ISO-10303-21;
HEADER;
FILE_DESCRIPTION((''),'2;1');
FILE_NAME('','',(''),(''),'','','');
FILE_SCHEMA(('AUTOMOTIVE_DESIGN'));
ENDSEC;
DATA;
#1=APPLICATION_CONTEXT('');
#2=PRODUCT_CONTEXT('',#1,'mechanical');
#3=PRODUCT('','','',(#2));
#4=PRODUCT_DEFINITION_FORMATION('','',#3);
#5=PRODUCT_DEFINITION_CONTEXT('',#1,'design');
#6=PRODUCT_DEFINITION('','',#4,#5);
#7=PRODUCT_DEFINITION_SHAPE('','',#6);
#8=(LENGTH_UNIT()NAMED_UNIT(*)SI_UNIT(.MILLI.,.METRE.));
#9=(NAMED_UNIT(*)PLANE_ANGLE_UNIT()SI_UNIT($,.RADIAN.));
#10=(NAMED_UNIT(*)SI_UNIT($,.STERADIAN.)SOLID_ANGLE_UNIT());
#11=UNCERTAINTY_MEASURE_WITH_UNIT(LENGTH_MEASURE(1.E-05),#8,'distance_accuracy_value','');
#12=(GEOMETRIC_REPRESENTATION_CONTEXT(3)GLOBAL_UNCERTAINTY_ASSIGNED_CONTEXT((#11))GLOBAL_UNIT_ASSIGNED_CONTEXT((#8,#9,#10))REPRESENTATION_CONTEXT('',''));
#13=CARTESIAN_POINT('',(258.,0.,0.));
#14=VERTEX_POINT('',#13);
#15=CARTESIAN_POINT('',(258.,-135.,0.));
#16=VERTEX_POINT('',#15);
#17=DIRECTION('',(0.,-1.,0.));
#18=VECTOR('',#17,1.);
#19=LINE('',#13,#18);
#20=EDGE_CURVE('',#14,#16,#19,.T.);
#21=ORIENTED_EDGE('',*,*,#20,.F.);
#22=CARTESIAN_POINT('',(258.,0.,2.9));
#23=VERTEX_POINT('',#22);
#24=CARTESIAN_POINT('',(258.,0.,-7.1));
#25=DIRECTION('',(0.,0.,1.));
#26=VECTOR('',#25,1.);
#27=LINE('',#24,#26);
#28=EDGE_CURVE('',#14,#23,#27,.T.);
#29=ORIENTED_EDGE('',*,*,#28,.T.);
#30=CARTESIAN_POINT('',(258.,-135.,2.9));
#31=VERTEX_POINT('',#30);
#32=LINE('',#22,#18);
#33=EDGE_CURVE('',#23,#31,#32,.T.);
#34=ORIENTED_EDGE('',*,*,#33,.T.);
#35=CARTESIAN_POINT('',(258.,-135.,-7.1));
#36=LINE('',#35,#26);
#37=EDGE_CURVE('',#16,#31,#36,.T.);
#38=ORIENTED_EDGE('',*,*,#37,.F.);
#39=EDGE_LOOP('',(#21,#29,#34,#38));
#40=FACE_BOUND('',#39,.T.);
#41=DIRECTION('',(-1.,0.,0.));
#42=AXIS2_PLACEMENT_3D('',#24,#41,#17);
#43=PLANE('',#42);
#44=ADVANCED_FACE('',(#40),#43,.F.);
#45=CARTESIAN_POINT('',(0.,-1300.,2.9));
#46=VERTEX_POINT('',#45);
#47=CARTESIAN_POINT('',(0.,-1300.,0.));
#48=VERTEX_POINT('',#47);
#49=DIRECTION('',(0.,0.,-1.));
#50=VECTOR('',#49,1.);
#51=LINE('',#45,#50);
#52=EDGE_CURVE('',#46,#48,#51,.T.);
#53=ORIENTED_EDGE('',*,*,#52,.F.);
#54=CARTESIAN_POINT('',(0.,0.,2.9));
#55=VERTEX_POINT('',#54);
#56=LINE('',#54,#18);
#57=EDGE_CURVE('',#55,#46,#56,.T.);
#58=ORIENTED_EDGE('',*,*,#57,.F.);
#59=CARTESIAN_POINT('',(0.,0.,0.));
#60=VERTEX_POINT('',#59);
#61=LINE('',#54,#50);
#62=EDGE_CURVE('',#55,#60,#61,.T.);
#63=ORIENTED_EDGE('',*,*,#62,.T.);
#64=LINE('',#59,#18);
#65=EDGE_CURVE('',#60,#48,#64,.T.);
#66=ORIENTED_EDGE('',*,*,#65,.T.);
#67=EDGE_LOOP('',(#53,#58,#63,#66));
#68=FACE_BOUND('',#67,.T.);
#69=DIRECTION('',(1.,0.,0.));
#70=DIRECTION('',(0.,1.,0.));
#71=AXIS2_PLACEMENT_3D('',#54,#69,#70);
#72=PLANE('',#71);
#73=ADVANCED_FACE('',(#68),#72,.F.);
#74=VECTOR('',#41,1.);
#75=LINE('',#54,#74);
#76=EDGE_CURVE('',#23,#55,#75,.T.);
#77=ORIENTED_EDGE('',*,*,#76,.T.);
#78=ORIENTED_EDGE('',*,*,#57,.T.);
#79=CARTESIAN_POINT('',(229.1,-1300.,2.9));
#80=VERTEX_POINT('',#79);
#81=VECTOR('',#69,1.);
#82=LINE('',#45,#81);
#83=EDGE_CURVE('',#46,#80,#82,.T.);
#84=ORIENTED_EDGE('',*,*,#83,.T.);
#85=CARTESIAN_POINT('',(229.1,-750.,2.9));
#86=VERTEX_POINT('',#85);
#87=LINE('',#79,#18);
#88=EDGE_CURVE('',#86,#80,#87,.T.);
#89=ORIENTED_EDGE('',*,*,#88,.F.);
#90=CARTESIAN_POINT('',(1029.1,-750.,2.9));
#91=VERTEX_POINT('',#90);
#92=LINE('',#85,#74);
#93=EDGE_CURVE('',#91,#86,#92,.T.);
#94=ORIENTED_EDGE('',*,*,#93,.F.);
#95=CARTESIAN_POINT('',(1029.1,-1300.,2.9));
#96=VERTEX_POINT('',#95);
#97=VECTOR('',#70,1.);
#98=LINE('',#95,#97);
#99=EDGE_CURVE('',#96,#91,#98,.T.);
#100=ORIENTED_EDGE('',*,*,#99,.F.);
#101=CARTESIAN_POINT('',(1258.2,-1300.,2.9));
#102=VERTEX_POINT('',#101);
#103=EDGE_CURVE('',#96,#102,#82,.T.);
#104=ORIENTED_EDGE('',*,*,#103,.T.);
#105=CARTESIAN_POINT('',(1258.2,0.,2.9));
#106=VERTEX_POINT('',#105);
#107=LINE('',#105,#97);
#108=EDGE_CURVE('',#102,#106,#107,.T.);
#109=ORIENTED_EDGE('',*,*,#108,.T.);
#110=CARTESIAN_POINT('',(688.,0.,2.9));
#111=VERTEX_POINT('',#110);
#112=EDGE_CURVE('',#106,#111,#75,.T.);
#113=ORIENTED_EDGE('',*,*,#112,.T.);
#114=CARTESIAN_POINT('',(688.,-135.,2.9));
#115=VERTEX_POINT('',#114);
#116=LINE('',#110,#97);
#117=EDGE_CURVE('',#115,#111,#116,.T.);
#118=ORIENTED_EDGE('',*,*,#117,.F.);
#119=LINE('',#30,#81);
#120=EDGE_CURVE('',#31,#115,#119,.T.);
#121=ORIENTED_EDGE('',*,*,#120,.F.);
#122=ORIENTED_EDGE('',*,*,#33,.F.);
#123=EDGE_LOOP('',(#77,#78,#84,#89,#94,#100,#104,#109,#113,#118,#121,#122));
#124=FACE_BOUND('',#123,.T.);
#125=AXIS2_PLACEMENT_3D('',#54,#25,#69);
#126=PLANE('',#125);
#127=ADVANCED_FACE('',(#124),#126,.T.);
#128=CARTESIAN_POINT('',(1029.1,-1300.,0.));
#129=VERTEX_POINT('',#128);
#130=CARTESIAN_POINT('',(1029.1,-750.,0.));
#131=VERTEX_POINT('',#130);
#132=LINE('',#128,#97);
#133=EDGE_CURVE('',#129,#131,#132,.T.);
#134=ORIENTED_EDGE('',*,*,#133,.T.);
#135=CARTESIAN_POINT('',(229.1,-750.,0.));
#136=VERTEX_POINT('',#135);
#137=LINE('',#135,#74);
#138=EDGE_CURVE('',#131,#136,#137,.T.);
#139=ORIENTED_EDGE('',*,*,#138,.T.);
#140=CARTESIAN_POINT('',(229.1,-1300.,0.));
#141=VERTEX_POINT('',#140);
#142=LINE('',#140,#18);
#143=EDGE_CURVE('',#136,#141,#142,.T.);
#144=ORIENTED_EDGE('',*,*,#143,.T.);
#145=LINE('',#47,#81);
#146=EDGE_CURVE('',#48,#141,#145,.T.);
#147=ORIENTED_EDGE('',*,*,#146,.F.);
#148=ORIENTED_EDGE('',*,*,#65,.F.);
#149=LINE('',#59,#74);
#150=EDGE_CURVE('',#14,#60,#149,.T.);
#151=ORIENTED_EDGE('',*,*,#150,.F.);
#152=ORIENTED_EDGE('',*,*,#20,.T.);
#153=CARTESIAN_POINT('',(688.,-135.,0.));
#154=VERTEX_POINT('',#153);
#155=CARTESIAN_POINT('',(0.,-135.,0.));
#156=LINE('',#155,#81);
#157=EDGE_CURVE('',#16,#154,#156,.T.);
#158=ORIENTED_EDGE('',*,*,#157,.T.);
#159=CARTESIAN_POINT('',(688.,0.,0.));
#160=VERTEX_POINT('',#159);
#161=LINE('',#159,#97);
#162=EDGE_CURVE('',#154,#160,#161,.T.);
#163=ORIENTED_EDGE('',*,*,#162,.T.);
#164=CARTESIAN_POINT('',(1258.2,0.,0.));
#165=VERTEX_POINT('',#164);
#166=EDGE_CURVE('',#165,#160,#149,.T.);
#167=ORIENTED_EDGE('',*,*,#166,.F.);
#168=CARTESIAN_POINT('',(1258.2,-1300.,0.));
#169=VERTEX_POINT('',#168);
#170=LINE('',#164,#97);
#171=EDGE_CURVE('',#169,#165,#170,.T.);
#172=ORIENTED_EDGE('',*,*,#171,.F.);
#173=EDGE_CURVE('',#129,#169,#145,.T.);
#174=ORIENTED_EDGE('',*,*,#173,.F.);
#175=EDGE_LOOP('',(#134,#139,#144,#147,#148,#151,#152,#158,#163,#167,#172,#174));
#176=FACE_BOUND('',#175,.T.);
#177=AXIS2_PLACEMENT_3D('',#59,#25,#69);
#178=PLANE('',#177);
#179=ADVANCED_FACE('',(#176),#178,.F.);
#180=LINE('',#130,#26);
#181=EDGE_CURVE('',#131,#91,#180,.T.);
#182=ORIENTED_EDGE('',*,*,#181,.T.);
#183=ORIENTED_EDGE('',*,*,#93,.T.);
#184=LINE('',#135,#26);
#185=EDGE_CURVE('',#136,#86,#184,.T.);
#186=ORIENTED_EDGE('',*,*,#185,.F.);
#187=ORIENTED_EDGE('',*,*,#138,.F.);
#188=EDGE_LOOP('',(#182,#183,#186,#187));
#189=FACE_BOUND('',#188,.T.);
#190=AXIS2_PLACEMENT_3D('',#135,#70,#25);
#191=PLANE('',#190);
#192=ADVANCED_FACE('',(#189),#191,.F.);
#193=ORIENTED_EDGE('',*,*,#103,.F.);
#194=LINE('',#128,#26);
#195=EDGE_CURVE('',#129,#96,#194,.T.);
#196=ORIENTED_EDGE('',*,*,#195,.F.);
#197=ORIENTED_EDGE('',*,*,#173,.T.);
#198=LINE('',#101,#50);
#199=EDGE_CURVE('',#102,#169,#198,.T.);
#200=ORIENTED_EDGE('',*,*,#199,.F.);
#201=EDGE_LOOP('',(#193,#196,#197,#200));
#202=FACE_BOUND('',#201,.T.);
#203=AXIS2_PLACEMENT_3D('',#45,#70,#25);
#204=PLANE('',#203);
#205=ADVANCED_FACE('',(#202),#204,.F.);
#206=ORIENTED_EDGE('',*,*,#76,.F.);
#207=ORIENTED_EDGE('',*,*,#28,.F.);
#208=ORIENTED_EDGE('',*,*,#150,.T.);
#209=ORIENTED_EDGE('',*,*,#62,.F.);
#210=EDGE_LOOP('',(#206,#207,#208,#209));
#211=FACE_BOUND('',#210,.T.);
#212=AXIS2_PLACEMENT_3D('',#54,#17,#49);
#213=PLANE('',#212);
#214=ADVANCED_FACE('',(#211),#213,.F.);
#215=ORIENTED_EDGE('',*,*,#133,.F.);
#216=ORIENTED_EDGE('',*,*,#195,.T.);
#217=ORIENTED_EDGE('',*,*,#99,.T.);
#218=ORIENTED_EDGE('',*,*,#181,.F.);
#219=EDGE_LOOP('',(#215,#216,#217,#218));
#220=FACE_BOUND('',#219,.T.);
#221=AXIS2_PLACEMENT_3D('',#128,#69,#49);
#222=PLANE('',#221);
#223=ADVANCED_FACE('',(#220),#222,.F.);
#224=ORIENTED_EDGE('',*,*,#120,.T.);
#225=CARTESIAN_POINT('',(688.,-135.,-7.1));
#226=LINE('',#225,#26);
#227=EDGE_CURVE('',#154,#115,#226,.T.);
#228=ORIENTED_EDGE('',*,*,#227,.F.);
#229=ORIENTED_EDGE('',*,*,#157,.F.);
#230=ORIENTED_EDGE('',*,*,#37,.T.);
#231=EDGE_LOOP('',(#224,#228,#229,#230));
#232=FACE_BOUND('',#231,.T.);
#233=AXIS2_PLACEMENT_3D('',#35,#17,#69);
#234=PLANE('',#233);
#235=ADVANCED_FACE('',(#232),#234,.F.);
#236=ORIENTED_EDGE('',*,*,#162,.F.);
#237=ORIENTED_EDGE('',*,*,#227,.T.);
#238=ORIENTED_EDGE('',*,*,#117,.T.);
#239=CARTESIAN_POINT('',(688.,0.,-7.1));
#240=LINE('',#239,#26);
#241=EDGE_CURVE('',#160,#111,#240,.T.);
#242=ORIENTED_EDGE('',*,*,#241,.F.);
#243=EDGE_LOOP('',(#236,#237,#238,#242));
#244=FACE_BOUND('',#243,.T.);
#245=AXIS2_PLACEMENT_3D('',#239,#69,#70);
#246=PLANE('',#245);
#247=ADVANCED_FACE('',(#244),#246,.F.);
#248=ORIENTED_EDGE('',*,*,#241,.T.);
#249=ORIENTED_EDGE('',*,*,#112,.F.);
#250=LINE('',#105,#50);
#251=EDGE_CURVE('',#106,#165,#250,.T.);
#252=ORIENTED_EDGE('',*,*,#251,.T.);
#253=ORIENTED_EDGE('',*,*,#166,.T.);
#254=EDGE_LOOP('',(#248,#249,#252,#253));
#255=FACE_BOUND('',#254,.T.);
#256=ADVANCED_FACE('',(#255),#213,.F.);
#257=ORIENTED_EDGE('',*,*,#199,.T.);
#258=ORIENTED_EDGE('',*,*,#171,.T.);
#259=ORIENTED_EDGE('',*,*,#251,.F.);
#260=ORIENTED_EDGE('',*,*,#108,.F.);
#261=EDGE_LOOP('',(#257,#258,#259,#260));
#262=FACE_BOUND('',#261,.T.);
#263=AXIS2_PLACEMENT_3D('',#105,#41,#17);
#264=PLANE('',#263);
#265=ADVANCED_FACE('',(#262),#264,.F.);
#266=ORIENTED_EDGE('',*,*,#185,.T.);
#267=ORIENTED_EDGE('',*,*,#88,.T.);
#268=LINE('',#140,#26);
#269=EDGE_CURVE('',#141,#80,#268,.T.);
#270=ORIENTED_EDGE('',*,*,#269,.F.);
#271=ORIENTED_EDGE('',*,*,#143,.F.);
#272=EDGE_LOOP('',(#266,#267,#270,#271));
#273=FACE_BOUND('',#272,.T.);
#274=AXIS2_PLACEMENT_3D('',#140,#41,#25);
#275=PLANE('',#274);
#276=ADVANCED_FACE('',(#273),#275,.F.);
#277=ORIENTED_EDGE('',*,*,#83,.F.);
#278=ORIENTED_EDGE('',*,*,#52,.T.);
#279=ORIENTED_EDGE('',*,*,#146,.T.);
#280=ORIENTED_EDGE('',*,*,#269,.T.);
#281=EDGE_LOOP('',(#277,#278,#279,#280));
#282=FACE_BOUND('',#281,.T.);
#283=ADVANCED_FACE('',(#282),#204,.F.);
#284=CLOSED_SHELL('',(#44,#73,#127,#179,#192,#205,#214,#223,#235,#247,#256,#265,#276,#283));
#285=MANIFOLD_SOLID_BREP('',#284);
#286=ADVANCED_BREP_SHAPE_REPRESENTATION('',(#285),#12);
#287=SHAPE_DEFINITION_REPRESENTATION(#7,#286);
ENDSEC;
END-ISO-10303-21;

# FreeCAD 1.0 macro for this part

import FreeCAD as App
import Part
import Sketcher

V = App.Vector


def add_polygon(sketch, points):
    """Adds a closed chain of lines whose ends are joined by coincident constraints."""
    first, n = sketch.GeometryCount, len(points)
    for a, b in zip(points, points[1:] + points[:1]):
        sketch.addGeometry(Part.LineSegment(App.Vector(*a, 0), App.Vector(*b, 0)), False)
    for i in range(n):
        sketch.addConstraint(Sketcher.Constraint("Coincident", first + i, 2, first + (i + 1) % n, 1))

doc = App.newDocument("Part")
body = doc.addObject("PartDesign::Body", "Body")

sketch1 = body.newObject("Sketcher::SketchObject", "Sketch")
sketch1.AttachmentSupport = (doc.getObject("XY_Plane"), [""])
sketch1.MapMode = "FlatFace"
add_polygon(sketch1, [(0, 0), (0, -1300), (1258, -1300), (1258, 0)])
sketch1.addConstraint([
    Sketcher.Constraint("Vertical", 0),
    Sketcher.Constraint("Horizontal", 1),
    Sketcher.Constraint("Vertical", 2),
    Sketcher.Constraint("Horizontal", 3),
    Sketcher.Constraint("Coincident", 3, 2, -1, 1),
    Sketcher.Constraint("DistanceY", 0, 2, 0, 1, 1300.0),
    Sketcher.Constraint("DistanceX", 1, 1, 1, 2, 1258.2),
])
pad1 = body.newObject("PartDesign::Pad", "Pad")
pad1.Profile = sketch1
pad1.Length = 2.9

sketch2 = body.newObject("Sketcher::SketchObject", "Sketch001")
sketch2.AttachmentSupport = (doc.getObject("XY_Plane"), [""])
sketch2.MapMode = "FlatFace"
sketch2.AttachmentOffset = App.Placement(V(0, 0, 2.9), App.Rotation())
add_polygon(sketch2, [(229, -750), (229, -1300), (1029, -1300), (1029, -750)])
sketch2.addConstraint([
    Sketcher.Constraint("Vertical", 0),
    Sketcher.Constraint("Horizontal", 1),
    Sketcher.Constraint("Vertical", 2),
    Sketcher.Constraint("Horizontal", 3),
    Sketcher.Constraint("DistanceX", 1, 1, 1, 2, 800.0),
    Sketcher.Constraint("DistanceY", 0, 2, 0, 1, 550.0),
    Sketcher.Constraint("DistanceY", 0, 2, -1, 1, 1300.0),
    Sketcher.Constraint("DistanceX", -1, 1, 0, 2, 229.1),
])
pocket1 = body.newObject("PartDesign::Pocket", "Pocket")
pocket1.Profile = sketch2
pocket1.Length = 2.9

sketch3 = body.newObject("Sketcher::SketchObject", "Sketch002")
sketch3.AttachmentSupport = (doc.getObject("XY_Plane"), [""])
sketch3.MapMode = "FlatFace"
sketch3.AttachmentOffset = App.Placement(V(0, 0, 2.9), App.Rotation())
add_polygon(sketch3, [(258, 0), (258, -135), (688, -135), (688, 0)])
sketch3.addConstraint([
    Sketcher.Constraint("Vertical", 0),
    Sketcher.Constraint("Horizontal", 1),
    Sketcher.Constraint("Vertical", 2),
    Sketcher.Constraint("Horizontal", 3),
    Sketcher.Constraint("PointOnObject", 2, 2, -1),
    Sketcher.Constraint("DistanceX", 1, 1, 1, 2, 430.0),
    Sketcher.Constraint("DistanceY", 0, 2, 0, 1, 135.0),
    Sketcher.Constraint("DistanceX", -1, 1, 0, 2, 258.0),
])
pocket2 = body.newObject("PartDesign::Pocket", "Pocket001")
pocket2.Profile = sketch3
pocket2.Length = 10

doc.recompute()
